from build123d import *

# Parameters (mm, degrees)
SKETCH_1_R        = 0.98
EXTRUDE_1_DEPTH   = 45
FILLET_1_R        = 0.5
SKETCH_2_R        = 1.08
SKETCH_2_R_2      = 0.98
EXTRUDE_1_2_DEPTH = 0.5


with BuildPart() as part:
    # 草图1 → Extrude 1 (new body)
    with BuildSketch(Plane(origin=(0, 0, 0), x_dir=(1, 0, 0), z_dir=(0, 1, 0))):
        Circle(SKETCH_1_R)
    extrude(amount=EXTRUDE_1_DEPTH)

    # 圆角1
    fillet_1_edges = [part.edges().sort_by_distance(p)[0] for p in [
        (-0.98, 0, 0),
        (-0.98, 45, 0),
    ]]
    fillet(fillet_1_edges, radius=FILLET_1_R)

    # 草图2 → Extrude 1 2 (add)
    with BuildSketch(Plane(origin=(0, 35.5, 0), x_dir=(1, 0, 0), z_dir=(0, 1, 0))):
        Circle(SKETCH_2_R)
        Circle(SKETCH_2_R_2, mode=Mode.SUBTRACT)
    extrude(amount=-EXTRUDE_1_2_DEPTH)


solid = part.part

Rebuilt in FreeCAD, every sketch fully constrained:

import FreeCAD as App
import Part
import Sketcher

V = App.Vector
Q = App.Units.Quantity


def edges_at(feature, points):
    """Names of the edges that pass closest to the given points."""
    edges = feature.Shape.Edges
    near = lambda p: min(range(len(edges)), key=lambda i: edges[i].distToShape(Part.Vertex(*p))[0])
    return sorted({f"Edge{near(p) + 1}" for p in points})

doc = App.newDocument("Part")
params = doc.addObject("Spreadsheet::Sheet", "Params")
for row, (alias, value) in enumerate([
    ("sketch1_diameter", "1.96 mm"),
    ("pad1_length", "45 mm"),
    ("fillet_radius", "0.5 mm"),
    ("sketch2_diameter", "2.16 mm"),
    ("sketch2_diameter2", "1.96 mm"),
    ("pad2_length", "0.5 mm"),
], start=1):
    params.set(f"A{row}", alias)
    params.set(f"B{row}", "=" + value)
    params.setAlias(f"B{row}", alias)

body = doc.addObject("PartDesign::Body", "Body")

sketch1 = body.newObject("Sketcher::SketchObject", "Sketch")
sketch1.AttachmentSupport = (doc.getObject("XZ_Plane"), [""])
sketch1.MapMode = "FlatFace"
sketch1.addGeometry(Part.Circle(V(0, 0, 0), V(0, 0, 1), 1), False)
sketch1.addConstraint([
    Sketcher.Constraint("Coincident", 0, 3, -1, 1),
    Sketcher.Constraint("Diameter", 0, Q("1.96 mm")),
])
sketch1.setExpression("Constraints[1]", "Params.sketch1_diameter")
pad1 = body.newObject("PartDesign::Pad", "Pad")
pad1.Profile = sketch1
pad1.setExpression("Length", "Params.pad1_length")
pad1.Reversed = True
doc.recompute()

fillet = body.newObject("PartDesign::Fillet", "Fillet")
fillet.Base = (pad1, edges_at(pad1, [(-0.98, 0, 0), (-0.98, 45, 0)]))
fillet.setExpression("Radius", "Params.fillet_radius")

sketch2 = body.newObject("Sketcher::SketchObject", "Sketch001")
sketch2.AttachmentSupport = (doc.getObject("XZ_Plane"), [""])
sketch2.MapMode = "FlatFace"
sketch2.AttachmentOffset = App.Placement(V(0, 0, -35.5), App.Rotation())
sketch2.addGeometry([
    Part.Circle(V(0, 0, 0), V(0, 0, 1), 1.1),
    Part.Circle(V(0, 0, 0), V(0, 0, 1), 1),
], False)
sketch2.addConstraint([
    Sketcher.Constraint("Coincident", 0, 3, -1, 1),
    Sketcher.Constraint("Coincident", 1, 3, -1, 1),
    Sketcher.Constraint("Diameter", 0, Q("2.16 mm")),
    Sketcher.Constraint("Diameter", 1, Q("1.96 mm")),
])
sketch2.setExpression("Constraints[2]", "Params.sketch2_diameter")
sketch2.setExpression("Constraints[3]", "Params.sketch2_diameter2")
pad2 = body.newObject("PartDesign::Pad", "Pad001")
pad2.Profile = sketch2
pad2.setExpression("Length", "Params.pad2_length")

doc.recompute()
